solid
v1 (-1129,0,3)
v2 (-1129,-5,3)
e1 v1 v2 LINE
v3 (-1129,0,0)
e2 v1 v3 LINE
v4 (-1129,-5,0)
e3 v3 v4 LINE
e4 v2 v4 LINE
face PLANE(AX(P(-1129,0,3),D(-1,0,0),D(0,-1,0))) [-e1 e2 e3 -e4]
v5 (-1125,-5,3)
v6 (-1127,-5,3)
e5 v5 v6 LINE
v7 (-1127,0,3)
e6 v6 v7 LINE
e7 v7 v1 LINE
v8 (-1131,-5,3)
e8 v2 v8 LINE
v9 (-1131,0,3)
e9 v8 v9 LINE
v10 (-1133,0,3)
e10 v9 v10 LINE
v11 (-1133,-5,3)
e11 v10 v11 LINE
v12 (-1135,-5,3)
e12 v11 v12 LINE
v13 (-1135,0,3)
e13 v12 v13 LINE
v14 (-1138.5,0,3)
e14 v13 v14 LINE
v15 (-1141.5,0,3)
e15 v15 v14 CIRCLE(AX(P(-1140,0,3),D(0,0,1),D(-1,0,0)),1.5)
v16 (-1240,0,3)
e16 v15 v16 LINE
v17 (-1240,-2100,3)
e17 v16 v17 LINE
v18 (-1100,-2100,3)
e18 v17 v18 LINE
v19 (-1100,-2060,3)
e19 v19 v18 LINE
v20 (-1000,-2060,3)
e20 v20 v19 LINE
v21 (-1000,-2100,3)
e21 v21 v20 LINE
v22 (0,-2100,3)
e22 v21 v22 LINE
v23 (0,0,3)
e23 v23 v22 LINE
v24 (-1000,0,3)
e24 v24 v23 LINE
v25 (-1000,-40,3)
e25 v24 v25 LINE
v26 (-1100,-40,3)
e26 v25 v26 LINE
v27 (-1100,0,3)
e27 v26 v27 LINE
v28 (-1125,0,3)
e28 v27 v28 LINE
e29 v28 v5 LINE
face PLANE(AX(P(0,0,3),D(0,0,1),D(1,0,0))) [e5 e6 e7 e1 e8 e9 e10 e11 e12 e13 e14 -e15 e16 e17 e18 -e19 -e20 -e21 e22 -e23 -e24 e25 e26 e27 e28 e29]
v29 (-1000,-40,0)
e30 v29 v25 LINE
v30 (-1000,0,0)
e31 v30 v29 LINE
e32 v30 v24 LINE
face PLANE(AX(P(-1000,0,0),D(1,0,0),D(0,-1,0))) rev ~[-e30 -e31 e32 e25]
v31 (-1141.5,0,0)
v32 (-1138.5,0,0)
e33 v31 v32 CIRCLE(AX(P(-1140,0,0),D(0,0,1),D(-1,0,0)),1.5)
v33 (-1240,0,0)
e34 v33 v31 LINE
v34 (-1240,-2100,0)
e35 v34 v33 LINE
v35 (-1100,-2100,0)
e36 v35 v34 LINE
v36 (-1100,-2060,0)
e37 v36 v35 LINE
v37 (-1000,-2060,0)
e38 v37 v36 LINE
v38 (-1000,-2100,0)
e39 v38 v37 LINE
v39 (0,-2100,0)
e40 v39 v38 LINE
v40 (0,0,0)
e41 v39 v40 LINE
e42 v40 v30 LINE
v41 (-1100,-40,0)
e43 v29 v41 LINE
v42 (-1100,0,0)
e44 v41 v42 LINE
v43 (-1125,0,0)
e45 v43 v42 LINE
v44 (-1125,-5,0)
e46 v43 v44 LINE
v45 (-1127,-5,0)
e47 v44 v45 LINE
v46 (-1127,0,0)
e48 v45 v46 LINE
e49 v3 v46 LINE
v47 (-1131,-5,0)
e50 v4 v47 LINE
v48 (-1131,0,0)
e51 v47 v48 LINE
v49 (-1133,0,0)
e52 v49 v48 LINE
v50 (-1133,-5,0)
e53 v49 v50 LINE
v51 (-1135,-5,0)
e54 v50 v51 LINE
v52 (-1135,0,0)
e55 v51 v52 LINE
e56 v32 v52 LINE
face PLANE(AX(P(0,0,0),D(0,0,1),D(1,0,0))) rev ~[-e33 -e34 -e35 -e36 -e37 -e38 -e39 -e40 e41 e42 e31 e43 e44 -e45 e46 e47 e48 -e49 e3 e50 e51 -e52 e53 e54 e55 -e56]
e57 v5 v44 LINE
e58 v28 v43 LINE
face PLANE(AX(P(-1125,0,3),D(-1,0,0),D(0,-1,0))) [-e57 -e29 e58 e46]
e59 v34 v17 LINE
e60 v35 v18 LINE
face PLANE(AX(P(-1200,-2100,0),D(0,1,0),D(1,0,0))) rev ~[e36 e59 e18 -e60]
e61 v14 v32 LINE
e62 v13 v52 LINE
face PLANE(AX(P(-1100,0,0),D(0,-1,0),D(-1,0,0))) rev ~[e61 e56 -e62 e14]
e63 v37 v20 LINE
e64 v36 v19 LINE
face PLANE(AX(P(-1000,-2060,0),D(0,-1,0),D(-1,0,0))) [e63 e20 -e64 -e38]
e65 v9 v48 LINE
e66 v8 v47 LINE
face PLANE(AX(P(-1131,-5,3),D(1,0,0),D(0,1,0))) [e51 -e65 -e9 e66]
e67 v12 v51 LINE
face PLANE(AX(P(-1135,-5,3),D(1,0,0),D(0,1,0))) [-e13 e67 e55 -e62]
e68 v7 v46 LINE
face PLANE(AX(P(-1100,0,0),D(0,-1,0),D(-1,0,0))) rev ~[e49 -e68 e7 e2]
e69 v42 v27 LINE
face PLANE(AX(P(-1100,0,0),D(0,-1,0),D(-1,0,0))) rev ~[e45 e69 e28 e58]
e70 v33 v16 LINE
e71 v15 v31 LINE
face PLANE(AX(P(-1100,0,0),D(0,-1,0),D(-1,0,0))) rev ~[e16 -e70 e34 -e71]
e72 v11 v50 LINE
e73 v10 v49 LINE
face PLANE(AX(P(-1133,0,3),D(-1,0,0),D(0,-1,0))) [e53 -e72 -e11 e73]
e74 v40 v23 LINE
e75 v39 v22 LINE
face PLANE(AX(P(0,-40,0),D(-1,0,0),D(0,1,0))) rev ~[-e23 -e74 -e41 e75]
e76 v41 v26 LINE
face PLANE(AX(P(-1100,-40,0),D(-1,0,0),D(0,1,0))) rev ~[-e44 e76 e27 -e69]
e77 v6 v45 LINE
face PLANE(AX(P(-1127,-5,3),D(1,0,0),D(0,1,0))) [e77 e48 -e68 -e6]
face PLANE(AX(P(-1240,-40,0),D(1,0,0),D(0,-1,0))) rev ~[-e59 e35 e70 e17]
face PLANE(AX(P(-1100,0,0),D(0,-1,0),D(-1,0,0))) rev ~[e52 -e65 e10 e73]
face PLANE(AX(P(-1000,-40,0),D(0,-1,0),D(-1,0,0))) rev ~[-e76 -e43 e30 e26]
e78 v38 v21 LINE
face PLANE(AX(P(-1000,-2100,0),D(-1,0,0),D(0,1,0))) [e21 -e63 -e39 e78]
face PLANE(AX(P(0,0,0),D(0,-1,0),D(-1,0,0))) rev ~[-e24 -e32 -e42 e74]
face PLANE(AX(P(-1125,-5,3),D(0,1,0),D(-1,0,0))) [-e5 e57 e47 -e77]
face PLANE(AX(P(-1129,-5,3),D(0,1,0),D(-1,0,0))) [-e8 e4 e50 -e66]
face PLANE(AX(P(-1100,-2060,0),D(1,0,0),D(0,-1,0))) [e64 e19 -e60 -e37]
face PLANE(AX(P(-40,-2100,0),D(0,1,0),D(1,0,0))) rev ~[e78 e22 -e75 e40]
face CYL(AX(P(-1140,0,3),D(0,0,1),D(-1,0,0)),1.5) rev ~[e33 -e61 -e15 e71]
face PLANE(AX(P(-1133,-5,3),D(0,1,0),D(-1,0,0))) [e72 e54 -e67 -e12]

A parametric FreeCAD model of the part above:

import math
import FreeCAD as App
import Part
import Sketcher
from FreeCAD import Vector
Q = App.Units.Quantity


def add_polygon(sketch, points):
    """Adds a closed chain of lines whose ends are joined by coincident constraints."""
    first, n = sketch.GeometryCount, len(points)
    for a, b in zip(points, points[1:] + points[:1]):
        sketch.addGeometry(Part.LineSegment(App.Vector(*a, 0), App.Vector(*b, 0)), False)
    for i in range(n):
        sketch.addConstraint(Sketcher.Constraint("Coincident", first + i, 2, first + (i + 1) % n, 1))

doc = App.newDocument("Part")
body = doc.addObject("PartDesign::Body", "Body")

# Sketch on XY plane
sketch1 = doc.addObject("Sketcher::SketchObject", "Sketch")
body.addObject(sketch1)
sketch1.AttachmentSupport = (doc.XY_Plane, [""])
sketch1.MapMode = "FlatFace"
add_polygon(sketch1, [(0, 0), (-1000, 0), (-1000, -40), (-1100, -40), (-1100, 0), (-1240, 0), (-1240, -2100), (-1100, -2100), (-1100, -2060), (-1000, -2060), (-1000, -2100), (0, -2100)])  # lines 0-11
sketch1.addConstraint([
    Sketcher.Constraint("Horizontal", 0),
    Sketcher.Constraint("Vertical", 1),
    Sketcher.Constraint("Horizontal", 2),
    Sketcher.Constraint("Vertical", 3),
    Sketcher.Constraint("Horizontal", 4),
    Sketcher.Constraint("Vertical", 5),
    Sketcher.Constraint("Horizontal", 6),
    Sketcher.Constraint("Vertical", 7),
    Sketcher.Constraint("Horizontal", 8),
    Sketcher.Constraint("Vertical", 9),
    Sketcher.Constraint("Horizontal", 10),
    Sketcher.Constraint("Vertical", 11),
    Sketcher.Constraint("Coincident", 11, 2, -1, 1),
    Sketcher.Constraint("PointOnObject", 3, 2, -1),
    Sketcher.Constraint("Horizontal", 6, 2, 9, 2),
    Sketcher.Constraint("Vertical", 3, 2, 6, 2),
    Sketcher.Constraint("Vertical", 1, 2, 8, 2),
    Sketcher.Constraint("Equal", 3, 7),
    Sketcher.Constraint("DistanceX", 2, 2, 2, 1, Q("100 mm")),
    Sketcher.Constraint("DistanceY", 1, 2, 1, 1, Q("40 mm")),
    Sketcher.Constraint("DistanceY", 5, 2, 5, 1, Q("2100 mm")),
    Sketcher.Constraint("DistanceX", 4, 2, -1, 1, Q("1240 mm")),
    Sketcher.Constraint("DistanceX", 0, 2, 0, 1, Q("1000 mm")),
])
pad1 = doc.addObject("PartDesign::Pad", "Pad")
body.addObject(pad1)
pad1.Profile = sketch1
pad1.Length = 3

# Sketch on XY plane
sketch2 = doc.addObject("Sketcher::SketchObject", "Sketch001")
body.addObject(sketch2)
sketch2.AttachmentSupport = (doc.XY_Plane, [""])
sketch2.MapMode = "FlatFace"
sketch2.AttachmentOffset = App.Placement(Vector(0, 0, 3), App.Rotation())
add_polygon(sketch2, [(-1125, 0), (-1127, 0), (-1127, -5), (-1125, -5)])  # lines 0-3
add_polygon(sketch2, [(-1129, 0), (-1131, 0), (-1131, -5), (-1129, -5)])  # lines 4-7
add_polygon(sketch2, [(-1133, 0), (-1135, 0), (-1135, -5), (-1133, -5)])  # lines 8-11
sketch2.addGeometry(Part.ArcOfCircle(Part.Circle(Vector(-1140, 0, 0), Vector(0, 0, 1), 1.5), math.radians(180), math.radians(360)), False)  # 12
sketch2.addGeometry(Part.LineSegment(Vector(-1138.5, 0, 0), Vector(-1141.5, 0, 0)), False)  # 13
sketch2.addConstraint([
    Sketcher.Constraint("Coincident", 12, 1, 13, 2),
    Sketcher.Constraint("Coincident", 13, 1, 12, 2),
    Sketcher.Constraint("Horizontal", 0),
    Sketcher.Constraint("Vertical", 1),
    Sketcher.Constraint("Horizontal", 2),
    Sketcher.Constraint("Vertical", 3),
    Sketcher.Constraint("Horizontal", 4),
    Sketcher.Constraint("Vertical", 5),
    Sketcher.Constraint("Horizontal", 6),
    Sketcher.Constraint("Vertical", 7),
    Sketcher.Constraint("Horizontal", 8),
    Sketcher.Constraint("Vertical", 9),
    Sketcher.Constraint("Horizontal", 10),
    Sketcher.Constraint("Vertical", 11),
    Sketcher.Constraint("Horizontal", 13),
    Sketcher.Constraint("PointOnObject", 12, 3, -1),
    Sketcher.Constraint("PointOnObject", 0, 2, -1),
    Sketcher.Constraint("PointOnObject", 4, 2, -1),
    Sketcher.Constraint("PointOnObject", 8, 2, -1),
    Sketcher.Constraint("PointOnObject", 12, 1, -1),
    Sketcher.Constraint("Horizontal", 2, 2, 5, 2),
    Sketcher.Constraint("Horizontal", 6, 2, 9, 2),
    Sketcher.Constraint("Equal", 2, 4),
    Sketcher.Constraint("Equal", 6, 8),
    Sketcher.Constraint("Radius", 12, Q("1.5 mm")),
    Sketcher.Constraint("DistanceX", 0, 2, 0, 1, Q("2 mm")),
    Sketcher.Constraint("DistanceY", 1, 2, 1, 1, Q("5 mm")),
    Sketcher.Constraint("DistanceX", 6, 2, 1, 2, Q("2 mm")),
    Sketcher.Constraint("DistanceX", 12, 3, 8, 2, Q("5 mm")),
    Sketcher.Constraint("DistanceX", 10, 2, 5, 2, Q("2 mm")),
    Sketcher.Constraint("DistanceX", 12, 3, -1, 1, Q("1140 mm")),
])
pocket1 = doc.addObject("PartDesign::Pocket", "Pocket")
body.addObject(pocket1)
pocket1.Profile = sketch2
pocket1.Length = 3

doc.recompute()
